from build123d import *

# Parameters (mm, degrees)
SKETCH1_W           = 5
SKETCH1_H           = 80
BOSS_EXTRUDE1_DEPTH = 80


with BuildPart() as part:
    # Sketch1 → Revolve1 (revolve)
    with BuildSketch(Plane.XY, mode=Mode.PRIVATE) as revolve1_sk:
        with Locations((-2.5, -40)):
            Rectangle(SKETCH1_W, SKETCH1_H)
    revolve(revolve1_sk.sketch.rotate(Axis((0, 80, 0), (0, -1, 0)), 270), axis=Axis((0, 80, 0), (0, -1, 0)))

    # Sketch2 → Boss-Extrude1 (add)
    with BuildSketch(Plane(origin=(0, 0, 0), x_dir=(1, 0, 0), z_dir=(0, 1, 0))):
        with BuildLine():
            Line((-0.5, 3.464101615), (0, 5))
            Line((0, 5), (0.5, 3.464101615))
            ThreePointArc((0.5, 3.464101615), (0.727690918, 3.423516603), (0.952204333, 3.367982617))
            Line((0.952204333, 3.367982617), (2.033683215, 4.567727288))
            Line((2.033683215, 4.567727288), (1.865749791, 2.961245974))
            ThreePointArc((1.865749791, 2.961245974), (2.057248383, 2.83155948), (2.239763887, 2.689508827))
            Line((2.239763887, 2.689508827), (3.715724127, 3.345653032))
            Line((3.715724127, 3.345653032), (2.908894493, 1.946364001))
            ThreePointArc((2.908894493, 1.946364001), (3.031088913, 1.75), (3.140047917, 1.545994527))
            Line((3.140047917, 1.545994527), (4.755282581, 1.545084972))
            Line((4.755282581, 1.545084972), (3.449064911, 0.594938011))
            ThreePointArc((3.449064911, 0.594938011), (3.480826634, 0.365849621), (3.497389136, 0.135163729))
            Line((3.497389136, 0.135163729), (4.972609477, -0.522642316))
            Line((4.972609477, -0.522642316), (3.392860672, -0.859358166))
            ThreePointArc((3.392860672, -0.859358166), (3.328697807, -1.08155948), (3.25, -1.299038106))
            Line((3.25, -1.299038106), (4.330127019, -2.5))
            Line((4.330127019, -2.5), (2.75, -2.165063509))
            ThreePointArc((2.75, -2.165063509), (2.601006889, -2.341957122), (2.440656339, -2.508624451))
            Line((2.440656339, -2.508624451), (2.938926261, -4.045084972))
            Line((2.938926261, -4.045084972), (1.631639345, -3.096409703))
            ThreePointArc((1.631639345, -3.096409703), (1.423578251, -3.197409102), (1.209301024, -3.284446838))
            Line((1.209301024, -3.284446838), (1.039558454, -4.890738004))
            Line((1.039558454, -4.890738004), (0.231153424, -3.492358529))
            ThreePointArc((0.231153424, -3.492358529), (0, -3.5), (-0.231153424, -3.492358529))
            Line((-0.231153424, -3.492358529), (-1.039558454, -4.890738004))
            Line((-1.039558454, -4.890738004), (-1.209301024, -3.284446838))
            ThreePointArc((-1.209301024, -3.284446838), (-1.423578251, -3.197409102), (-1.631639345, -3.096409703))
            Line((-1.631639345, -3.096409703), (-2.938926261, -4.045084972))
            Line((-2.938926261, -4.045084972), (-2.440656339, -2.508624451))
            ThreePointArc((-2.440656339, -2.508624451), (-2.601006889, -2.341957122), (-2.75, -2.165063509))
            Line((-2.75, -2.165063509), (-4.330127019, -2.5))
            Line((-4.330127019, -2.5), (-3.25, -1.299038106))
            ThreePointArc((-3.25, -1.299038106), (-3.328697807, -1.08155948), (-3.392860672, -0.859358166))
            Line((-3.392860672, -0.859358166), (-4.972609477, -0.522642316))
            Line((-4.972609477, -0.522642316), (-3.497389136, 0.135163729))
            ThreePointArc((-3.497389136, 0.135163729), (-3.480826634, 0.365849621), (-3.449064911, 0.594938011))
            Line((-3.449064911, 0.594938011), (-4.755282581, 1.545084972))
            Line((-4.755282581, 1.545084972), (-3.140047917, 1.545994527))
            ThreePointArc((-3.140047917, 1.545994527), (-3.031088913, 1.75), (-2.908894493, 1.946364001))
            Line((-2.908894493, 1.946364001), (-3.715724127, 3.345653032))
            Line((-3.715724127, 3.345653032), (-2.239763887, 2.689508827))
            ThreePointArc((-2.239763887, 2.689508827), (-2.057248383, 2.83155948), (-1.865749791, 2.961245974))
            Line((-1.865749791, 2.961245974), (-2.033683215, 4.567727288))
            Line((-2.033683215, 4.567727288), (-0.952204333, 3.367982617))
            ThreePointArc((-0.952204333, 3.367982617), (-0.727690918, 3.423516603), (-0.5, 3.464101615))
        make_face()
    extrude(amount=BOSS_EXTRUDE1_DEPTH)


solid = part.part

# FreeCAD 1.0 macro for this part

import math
import FreeCAD as App
import Part
import Sketcher

doc = App.newDocument("Part")
body = doc.addObject("PartDesign::Body", "Body")

sketch1 = doc.addObject("Sketcher::SketchObject", "Sketch")
body.addObject(sketch1)
sketch1.AttachmentSupport = (doc.XY_Plane, [""])
sketch1.MapMode = "FlatFace"
sketch1.addGeometry([
    Part.LineSegment(App.Vector(-5, 0, 0), App.Vector(-5, -80, 0)),
    Part.LineSegment(App.Vector(-5, -80, 0), App.Vector(0, -80, 0)),
    Part.LineSegment(App.Vector(0, -80, 0), App.Vector(0, 0, 0)),
    Part.LineSegment(App.Vector(0, 0, 0), App.Vector(-5, 0, 0)),
], False)
sketch1.addConstraint([
    Sketcher.Constraint("Coincident", 0, 2, 1, 1),
    Sketcher.Constraint("Coincident", 1, 2, 2, 1),
    Sketcher.Constraint("Coincident", 2, 2, 3, 1),
    Sketcher.Constraint("Coincident", 3, 2, 0, 1),
    Sketcher.Constraint("Vertical", 0),
    Sketcher.Constraint("Horizontal", 1),
    Sketcher.Constraint("Vertical", 2),
    Sketcher.Constraint("Horizontal", 3),
    Sketcher.Constraint("Coincident", 2, 2, -1, 1),
    Sketcher.Constraint("DistanceX", 1, 1, 1, 2, 5.0),
    Sketcher.Constraint("DistanceY", 0, 2, 0, 1, 80.0),
])
revolution = doc.addObject("PartDesign::Revolution", "Revolution")
body.addObject(revolution)
revolution.Profile = sketch1
revolution.ReferenceAxis = (sketch1, ["V_Axis"])
revolution.Angle = 360

sketch2 = doc.addObject("Sketcher::SketchObject", "Sketch001")
body.addObject(sketch2)
sketch2.AttachmentSupport = (doc.XZ_Plane, [""])
sketch2.MapMode = "FlatFace"
sketch2.addGeometry([
    Part.LineSegment(App.Vector(0, -5, 0), App.Vector(-0.5, -3.46, 0)),
    Part.ArcOfCircle(Part.Circle(App.Vector(0, 0, 0), App.Vector(0, 0, 1), 3.5), math.radians(-105.79), math.radians(-98.21)),
    Part.LineSegment(App.Vector(-0.95, -3.37, 0), App.Vector(-2.03, -4.57, 0)),
    Part.LineSegment(App.Vector(-2.03, -4.57, 0), App.Vector(-1.87, -2.96, 0)),
    Part.ArcOfCircle(Part.Circle(App.Vector(0, 0, 0), App.Vector(0, 0, 1), 3.5), math.radians(-129.79), math.radians(-122.21)),
    Part.LineSegment(App.Vector(-2.24, -2.69, 0), App.Vector(-3.72, -3.35, 0)),
    Part.LineSegment(App.Vector(-3.72, -3.35, 0), App.Vector(-2.91, -1.95, 0)),
    Part.ArcOfCircle(Part.Circle(App.Vector(0, 0, 0), App.Vector(0, 0, 1), 3.5), math.radians(-153.79), math.radians(-146.21)),
    Part.LineSegment(App.Vector(-3.14, -1.55, 0), App.Vector(-4.76, -1.55, 0)),
    Part.LineSegment(App.Vector(-4.76, -1.55, 0), App.Vector(-3.45, -0.59, 0)),
    Part.ArcOfCircle(Part.Circle(App.Vector(0, 0, 0), App.Vector(0, 0, 1), 3.5), math.radians(-177.79), math.radians(-170.21)),
    Part.LineSegment(App.Vector(-3.5, -0.14, 0), App.Vector(-4.97, 0.52, 0)),
    Part.LineSegment(App.Vector(-4.97, 0.52, 0), App.Vector(-3.39, 0.86, 0)),
    Part.ArcOfCircle(Part.Circle(App.Vector(0, 0, 0), App.Vector(0, 0, 1), 3.5), math.radians(158.21), math.radians(165.79)),
    Part.LineSegment(App.Vector(-3.25, 1.3, 0), App.Vector(-4.33, 2.5, 0)),
    Part.LineSegment(App.Vector(-4.33, 2.5, 0), App.Vector(-2.75, 2.17, 0)),
    Part.ArcOfCircle(Part.Circle(App.Vector(0, 0, 0), App.Vector(0, 0, 1), 3.5), math.radians(134.21), math.radians(141.79)),
    Part.LineSegment(App.Vector(-2.44, 2.51, 0), App.Vector(-2.94, 4.05, 0)),
    Part.LineSegment(App.Vector(-2.94, 4.05, 0), App.Vector(-1.63, 3.1, 0)),
    Part.ArcOfCircle(Part.Circle(App.Vector(0, 0, 0), App.Vector(0, 0, 1), 3.5), math.radians(110.21), math.radians(117.79)),
    Part.LineSegment(App.Vector(-1.21, 3.28, 0), App.Vector(-1.04, 4.89, 0)),
    Part.LineSegment(App.Vector(-1.04, 4.89, 0), App.Vector(-0.23, 3.49, 0)),
    Part.ArcOfCircle(Part.Circle(App.Vector(0, 0, 0), App.Vector(0, 0, 1), 3.5), math.radians(86.21), math.radians(93.79)),
    Part.LineSegment(App.Vector(0.23, 3.49, 0), App.Vector(1.04, 4.89, 0)),
    Part.LineSegment(App.Vector(1.04, 4.89, 0), App.Vector(1.21, 3.28, 0)),
    Part.ArcOfCircle(Part.Circle(App.Vector(0, 0, 0), App.Vector(0, 0, 1), 3.5), math.radians(62.21), math.radians(69.79)),
    Part.LineSegment(App.Vector(1.63, 3.1, 0), App.Vector(2.94, 4.05, 0)),
    Part.LineSegment(App.Vector(2.94, 4.05, 0), App.Vector(2.44, 2.51, 0)),
    Part.ArcOfCircle(Part.Circle(App.Vector(0, 0, 0), App.Vector(0, 0, 1), 3.5), math.radians(38.21), math.radians(45.79)),
    Part.LineSegment(App.Vector(2.75, 2.17, 0), App.Vector(4.33, 2.5, 0)),
    Part.LineSegment(App.Vector(4.33, 2.5, 0), App.Vector(3.25, 1.3, 0)),
    Part.ArcOfCircle(Part.Circle(App.Vector(0, 0, 0), App.Vector(0, 0, 1), 3.5), math.radians(14.21), math.radians(21.79)),
    Part.LineSegment(App.Vector(3.39, 0.86, 0), App.Vector(4.97, 0.52, 0)),
    Part.LineSegment(App.Vector(4.97, 0.52, 0), App.Vector(3.5, -0.14, 0)),
    Part.ArcOfCircle(Part.Circle(App.Vector(0, 0, 0), App.Vector(0, 0, 1), 3.5), math.radians(-9.79), math.radians(-2.21)),
    Part.LineSegment(App.Vector(3.45, -0.59, 0), App.Vector(4.76, -1.55, 0)),
    Part.LineSegment(App.Vector(4.76, -1.55, 0), App.Vector(3.14, -1.55, 0)),
    Part.ArcOfCircle(Part.Circle(App.Vector(0, 0, 0), App.Vector(0, 0, 1), 3.5), math.radians(-33.79), math.radians(-26.21)),
    Part.LineSegment(App.Vector(2.91, -1.95, 0), App.Vector(3.72, -3.35, 0)),
    Part.LineSegment(App.Vector(3.72, -3.35, 0), App.Vector(2.24, -2.69, 0)),
    Part.ArcOfCircle(Part.Circle(App.Vector(0, 0, 0), App.Vector(0, 0, 1), 3.5), math.radians(-57.79), math.radians(-50.21)),
    Part.LineSegment(App.Vector(1.87, -2.96, 0), App.Vector(2.03, -4.57, 0)),
    Part.LineSegment(App.Vector(2.03, -4.57, 0), App.Vector(0.95, -3.37, 0)),
    Part.ArcOfCircle(Part.Circle(App.Vector(0, 0, 0), App.Vector(0, 0, 1), 3.5), math.radians(-81.79), math.radians(-74.21)),
    Part.LineSegment(App.Vector(0.5, -3.46, 0), App.Vector(0, -5, 0)),
], False)
sketch2.addConstraint([
    Sketcher.Constraint("Coincident", 0, 2, 1, 2),
    Sketcher.Constraint("Coincident", 1, 1, 2, 1),
    Sketcher.Constraint("Coincident", 2, 2, 3, 1),
    Sketcher.Constraint("Coincident", 3, 2, 4, 2),
    Sketcher.Constraint("Coincident", 4, 1, 5, 1),
    Sketcher.Constraint("Coincident", 5, 2, 6, 1),
    Sketcher.Constraint("Coincident", 6, 2, 7, 2),
    Sketcher.Constraint("Coincident", 7, 1, 8, 1),
    Sketcher.Constraint("Coincident", 8, 2, 9, 1),
    Sketcher.Constraint("Coincident", 9, 2, 10, 2),
    Sketcher.Constraint("Coincident", 10, 1, 11, 1),
    Sketcher.Constraint("Coincident", 11, 2, 12, 1),
    Sketcher.Constraint("Coincident", 12, 2, 13, 2),
    Sketcher.Constraint("Coincident", 13, 1, 14, 1),
    Sketcher.Constraint("Coincident", 14, 2, 15, 1),
    Sketcher.Constraint("Coincident", 15, 2, 16, 2),
    Sketcher.Constraint("Coincident", 16, 1, 17, 1),
    Sketcher.Constraint("Coincident", 17, 2, 18, 1),
    Sketcher.Constraint("Coincident", 18, 2, 19, 2),
    Sketcher.Constraint("Coincident", 19, 1, 20, 1),
    Sketcher.Constraint("Coincident", 20, 2, 21, 1),
    Sketcher.Constraint("Coincident", 21, 2, 22, 2),
    Sketcher.Constraint("Coincident", 22, 1, 23, 1),
    Sketcher.Constraint("Coincident", 23, 2, 24, 1),
    Sketcher.Constraint("Coincident", 24, 2, 25, 2),
    Sketcher.Constraint("Coincident", 25, 1, 26, 1),
    Sketcher.Constraint("Coincident", 26, 2, 27, 1),
    Sketcher.Constraint("Coincident", 27, 2, 28, 2),
    Sketcher.Constraint("Coincident", 28, 1, 29, 1),
    Sketcher.Constraint("Coincident", 29, 2, 30, 1),
    Sketcher.Constraint("Coincident", 30, 2, 31, 2),
    Sketcher.Constraint("Coincident", 31, 1, 32, 1),
    Sketcher.Constraint("Coincident", 32, 2, 33, 1),
    Sketcher.Constraint("Coincident", 33, 2, 34, 2),
    Sketcher.Constraint("Coincident", 34, 1, 35, 1),
    Sketcher.Constraint("Coincident", 35, 2, 36, 1),
    Sketcher.Constraint("Coincident", 36, 2, 37, 2),
    Sketcher.Constraint("Coincident", 37, 1, 38, 1),
    Sketcher.Constraint("Coincident", 38, 2, 39, 1),
    Sketcher.Constraint("Coincident", 39, 2, 40, 2),
    Sketcher.Constraint("Coincident", 40, 1, 41, 1),
    Sketcher.Constraint("Coincident", 41, 2, 42, 1),
    Sketcher.Constraint("Coincident", 42, 2, 43, 2),
    Sketcher.Constraint("Coincident", 43, 1, 44, 1),
    Sketcher.Constraint("Coincident", 44, 2, 0, 1),
    Sketcher.Constraint("Coincident", 1, 3, -1, 1),
    Sketcher.Constraint("Coincident", 4, 3, -1, 1),
    Sketcher.Constraint("Coincident", 7, 3, -1, 1),
    Sketcher.Constraint("Coincident", 10, 3, -1, 1),
    Sketcher.Constraint("Coincident", 13, 3, -1, 1),
    Sketcher.Constraint("Coincident", 16, 3, -1, 1),
    Sketcher.Constraint("Coincident", 19, 3, -1, 1),
    Sketcher.Constraint("Coincident", 22, 3, -1, 1),
    Sketcher.Constraint("Coincident", 25, 3, -1, 1),
    Sketcher.Constraint("Coincident", 28, 3, -1, 1),
    Sketcher.Constraint("Coincident", 31, 3, -1, 1),
    Sketcher.Constraint("Coincident", 34, 3, -1, 1),
    Sketcher.Constraint("Coincident", 37, 3, -1, 1),
    Sketcher.Constraint("Coincident", 40, 3, -1, 1),
    Sketcher.Constraint("Coincident", 43, 3, -1, 1),
    Sketcher.Constraint("Equal", 1, 4),
    Sketcher.Constraint("Equal", 4, 7),
    Sketcher.Constraint("Equal", 7, 10),
    Sketcher.Constraint("Equal", 10, 13),
    Sketcher.Constraint("Equal", 13, 16),
    Sketcher.Constraint("Equal", 16, 19),
    Sketcher.Constraint("Equal", 19, 22),
    Sketcher.Constraint("Equal", 22, 25),
    Sketcher.Constraint("Equal", 25, 28),
    Sketcher.Constraint("Equal", 28, 31),
    Sketcher.Constraint("Equal", 31, 34),
    Sketcher.Constraint("Equal", 34, 37),
    Sketcher.Constraint("Equal", 37, 40),
    Sketcher.Constraint("Equal", 40, 43),
    Sketcher.Constraint("Symmetric", 20, 2, 23, 2, -2),
    Sketcher.Constraint("Symmetric", 17, 2, 26, 2, -2),
    Sketcher.Constraint("Symmetric", 14, 2, 29, 2, -2),
    Sketcher.Constraint("Symmetric", 11, 2, 32, 2, -2),
    Sketcher.Constraint("Symmetric", 8, 2, 35, 2, -2),
    Sketcher.Constraint("Symmetric", 5, 2, 38, 2, -2),
    Sketcher.Constraint("Symmetric", 2, 2, 41, 2, -2),
    Sketcher.Constraint("PointOnObject", 44, 2, -2),
    Sketcher.Constraint("Horizontal", 21, 2, 22, 1),
    Sketcher.Constraint("Horizontal", 19, 1, 24, 2),
    Sketcher.Constraint("Horizontal", 18, 2, 25, 1),
    Sketcher.Constraint("Horizontal", 16, 1, 27, 2),
    Sketcher.Constraint("Horizontal", 15, 2, 28, 1),
    Sketcher.Constraint("Horizontal", 13, 1, 30, 2),
    Sketcher.Constraint("Horizontal", 12, 2, 31, 1),
    Sketcher.Constraint("Horizontal", 10, 1, 33, 2),
    Sketcher.Constraint("Horizontal", 9, 2, 34, 1),
    Sketcher.Constraint("Horizontal", 7, 1, 36, 2),
    Sketcher.Constraint("Horizontal", 6, 2, 37, 1),
    Sketcher.Constraint("Horizontal", 4, 1, 39, 2),
    Sketcher.Constraint("Horizontal", 3, 2, 40, 1),
    Sketcher.Constraint("Horizontal", 1, 1, 42, 2),
    Sketcher.Constraint("Horizontal", 0, 2, 43, 1),
    Sketcher.Constraint("Equal", 0, 2),
    Sketcher.Constraint("Equal", 2, 3),
    Sketcher.Constraint("Equal", 3, 5),
    Sketcher.Constraint("Equal", 5, 6),
    Sketcher.Constraint("Equal", 6, 8),
    Sketcher.Constraint("Equal", 8, 9),
    Sketcher.Constraint("Equal", 9, 11),
    Sketcher.Constraint("Equal", 11, 12),
    Sketcher.Constraint("Equal", 12, 14),
    Sketcher.Constraint("Equal", 14, 15),
    Sketcher.Constraint("Equal", 15, 17),
    Sketcher.Constraint("Equal", 17, 18),
    Sketcher.Constraint("Equal", 18, 20),
    Sketcher.Constraint("Equal", 20, 21),
    Sketcher.Constraint("Radius", 1, 3.5),
    Sketcher.Constraint("DistanceY", 44, 2, -1, 1, 5.0),
    Sketcher.Constraint("DistanceX", 0, 2, 43, 1, 1.0),
    Sketcher.Constraint("DistanceY", -1, 1, 14, 2, 2.5),
    Sketcher.Constraint("DistanceX", 13, 1, 15, 2, 0.5),
    Sketcher.Constraint("DistanceY", 34, 1, 28, 1, 2.760002),
    Sketcher.Constraint("DistanceX", 19, 1, -1, 1, 1.209301),
    Sketcher.Constraint("DistanceX", 7, 1, 3, 2, 1.274298),
    Sketcher.Constraint("DistanceX", 9, 2, 4, 1, 1.209301),
    Sketcher.Constraint("DistanceY", 6, 2, 10, 1, 1.8112),
    Sketcher.Constraint("DistanceY", 10, 1, 13, 1, 1.434202),
    Sketcher.Constraint("DistanceX", 14, 2, 17, 2, 1.391201),
    Sketcher.Constraint("DistanceX", 3, 2, -1, 1, 1.86575),
    Sketcher.Constraint("DistanceX", 11, 2, -1, 1, 4.972609),
    Sketcher.Constraint("DistanceX", 18, 2, -1, 1, 1.631639),
    Sketcher.Constraint("DistanceX", 20, 2, -1, 1, 1.039558),
    Sketcher.Constraint("DistanceY", 0, 2, 1, 1, 0.096119),
])
pad1 = doc.addObject("PartDesign::Pad", "Pad")
body.addObject(pad1)
pad1.Profile = sketch2
pad1.Length = 80
pad1.Reversed = True

doc.recompute()
